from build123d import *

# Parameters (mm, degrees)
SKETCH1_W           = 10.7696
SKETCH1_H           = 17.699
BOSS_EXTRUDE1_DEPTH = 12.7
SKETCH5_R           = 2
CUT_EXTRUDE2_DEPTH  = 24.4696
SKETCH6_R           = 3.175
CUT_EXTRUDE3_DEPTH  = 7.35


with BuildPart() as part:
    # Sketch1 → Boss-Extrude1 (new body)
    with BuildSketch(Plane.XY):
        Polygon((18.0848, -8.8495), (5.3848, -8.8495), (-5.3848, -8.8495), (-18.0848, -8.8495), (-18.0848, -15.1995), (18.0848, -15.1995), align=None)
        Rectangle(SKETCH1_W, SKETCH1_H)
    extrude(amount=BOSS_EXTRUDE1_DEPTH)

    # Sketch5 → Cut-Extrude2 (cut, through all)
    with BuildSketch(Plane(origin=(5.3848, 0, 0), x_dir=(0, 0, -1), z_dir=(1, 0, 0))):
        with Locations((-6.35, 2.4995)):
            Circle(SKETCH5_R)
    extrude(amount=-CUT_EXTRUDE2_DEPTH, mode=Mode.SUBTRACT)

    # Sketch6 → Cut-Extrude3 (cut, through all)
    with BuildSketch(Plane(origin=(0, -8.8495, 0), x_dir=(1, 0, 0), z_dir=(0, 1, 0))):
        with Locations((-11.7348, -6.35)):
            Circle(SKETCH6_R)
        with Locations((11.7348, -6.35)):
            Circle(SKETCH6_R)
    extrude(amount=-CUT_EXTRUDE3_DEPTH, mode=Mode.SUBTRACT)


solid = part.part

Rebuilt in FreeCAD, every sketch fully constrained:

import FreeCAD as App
import Part
import Sketcher
from FreeCAD import Vector
Q = App.Units.Quantity

doc = App.newDocument("Part")
body = doc.addObject("PartDesign::Body", "Body")

sketch1 = body.newObject("Sketcher::SketchObject", "Sketch")
sketch1.AttachmentSupport = (doc.getObject("XY_Plane"), [""])
sketch1.MapMode = "FlatFace"
sketch1.addGeometry([
    Part.LineSegment(Vector(18.0848, -8.8495, 0), Vector(5.3848, -8.8495, 0)),
    Part.LineSegment(Vector(5.3848, -8.8495, 0), Vector(5.3848, 8.8495, 0)),
    Part.LineSegment(Vector(5.3848, 8.8495, 0), Vector(-5.3848, 8.8495, 0)),
    Part.LineSegment(Vector(-5.3848, 8.8495, 0), Vector(-5.3848, -8.8495, 0)),
    Part.LineSegment(Vector(-5.3848, -8.8495, 0), Vector(-18.0848, -8.8495, 0)),
    Part.LineSegment(Vector(-18.0848, -8.8495, 0), Vector(-18.0848, -15.1995, 0)),
    Part.LineSegment(Vector(-18.0848, -15.1995, 0), Vector(18.0848, -15.1995, 0)),
    Part.LineSegment(Vector(18.0848, -15.1995, 0), Vector(18.0848, -8.8495, 0)),
], False)
sketch1.addConstraint([
    Sketcher.Constraint("Coincident", 0, 2, 1, 1),
    Sketcher.Constraint("Coincident", 1, 2, 2, 1),
    Sketcher.Constraint("Coincident", 2, 2, 3, 1),
    Sketcher.Constraint("Coincident", 3, 2, 4, 1),
    Sketcher.Constraint("Coincident", 4, 2, 5, 1),
    Sketcher.Constraint("Coincident", 5, 2, 6, 1),
    Sketcher.Constraint("Coincident", 6, 2, 7, 1),
    Sketcher.Constraint("Coincident", 7, 2, 0, 1),
    Sketcher.Constraint("Horizontal", 0),
    Sketcher.Constraint("Vertical", 1),
    Sketcher.Constraint("Horizontal", 2),
    Sketcher.Constraint("Vertical", 3),
    Sketcher.Constraint("Horizontal", 4),
    Sketcher.Constraint("Vertical", 5),
    Sketcher.Constraint("Horizontal", 6),
    Sketcher.Constraint("Vertical", 7),
    Sketcher.Constraint("Symmetric", 0, 2, 2, 2, -1, 1),
    Sketcher.Constraint("Symmetric", 4, 2, 7, 2, -2),
    Sketcher.Constraint("DistanceX", 0, 2, 0, 1, Q("0.5 in")),
    Sketcher.Constraint("DistanceY", 5, 2, 5, 1, Q("0.25 in")),
    Sketcher.Constraint("DistanceX", 2, 2, 2, 1, Q("0.424 in")),
    Sketcher.Constraint("DistanceY", 1, 1, 1, 2, Q("17.699 mm")),
])
pad1 = body.newObject("PartDesign::Pad", "Pad")
pad1.Profile = sketch1
pad1.Length = Q("0.5 in")

sketch2 = body.newObject("Sketcher::SketchObject", "Sketch001")
sketch2.AttachmentSupport = (doc.getObject("YZ_Plane"), [""])
sketch2.MapMode = "FlatFace"
sketch2.AttachmentOffset = App.Placement(Vector(0, 0, 0.212 * 25.4), App.Rotation())
sketch2.addGeometry(Part.Circle(Vector(2.4995, 6.35, 0), Vector(0, 0, 1), 2), False)
sketch2.addConstraint([
    Sketcher.Constraint("Diameter", 0, Q("4 mm")),
    Sketcher.Constraint("DistanceY", -1, 1, 0, 3, Q("0.25 in")),
    Sketcher.Constraint("DistanceX", -1, 1, 0, 3, Q("2.4995 mm")),
])
pocket1 = body.newObject("PartDesign::Pocket", "Pocket")
pocket1.Profile = sketch2
pocket1.Type = "ThroughAll"

sketch3 = body.newObject("Sketcher::SketchObject", "Sketch002")
sketch3.AttachmentSupport = (doc.getObject("XZ_Plane"), [""])
sketch3.MapMode = "FlatFace"
sketch3.AttachmentOffset = App.Placement(Vector(0, 0, 8.8495), App.Rotation())
sketch3.addGeometry([
    Part.Circle(Vector(-11.7348, 6.35, 0), Vector(0, 0, 1), 3.175),
    Part.Circle(Vector(11.7348, 6.35, 0), Vector(0, 0, 1), 3.175),
], False)
sketch3.addConstraint([
    Sketcher.Constraint("Equal", 0, 1),
    Sketcher.Constraint("Symmetric", 0, 3, 1, 3, -2),
    Sketcher.Constraint("Diameter", 0, Q("0.25 in")),
    Sketcher.Constraint("DistanceY", -1, 1, 0, 3, Q("0.25 in")),
    Sketcher.Constraint("DistanceX", 0, 3, -1, 1, Q("0.462 in")),
])
pocket2 = body.newObject("PartDesign::Pocket", "Pocket001")
pocket2.Profile = sketch3
pocket2.Type = "ThroughAll"
pocket2.Reversed = True

doc.recompute()
